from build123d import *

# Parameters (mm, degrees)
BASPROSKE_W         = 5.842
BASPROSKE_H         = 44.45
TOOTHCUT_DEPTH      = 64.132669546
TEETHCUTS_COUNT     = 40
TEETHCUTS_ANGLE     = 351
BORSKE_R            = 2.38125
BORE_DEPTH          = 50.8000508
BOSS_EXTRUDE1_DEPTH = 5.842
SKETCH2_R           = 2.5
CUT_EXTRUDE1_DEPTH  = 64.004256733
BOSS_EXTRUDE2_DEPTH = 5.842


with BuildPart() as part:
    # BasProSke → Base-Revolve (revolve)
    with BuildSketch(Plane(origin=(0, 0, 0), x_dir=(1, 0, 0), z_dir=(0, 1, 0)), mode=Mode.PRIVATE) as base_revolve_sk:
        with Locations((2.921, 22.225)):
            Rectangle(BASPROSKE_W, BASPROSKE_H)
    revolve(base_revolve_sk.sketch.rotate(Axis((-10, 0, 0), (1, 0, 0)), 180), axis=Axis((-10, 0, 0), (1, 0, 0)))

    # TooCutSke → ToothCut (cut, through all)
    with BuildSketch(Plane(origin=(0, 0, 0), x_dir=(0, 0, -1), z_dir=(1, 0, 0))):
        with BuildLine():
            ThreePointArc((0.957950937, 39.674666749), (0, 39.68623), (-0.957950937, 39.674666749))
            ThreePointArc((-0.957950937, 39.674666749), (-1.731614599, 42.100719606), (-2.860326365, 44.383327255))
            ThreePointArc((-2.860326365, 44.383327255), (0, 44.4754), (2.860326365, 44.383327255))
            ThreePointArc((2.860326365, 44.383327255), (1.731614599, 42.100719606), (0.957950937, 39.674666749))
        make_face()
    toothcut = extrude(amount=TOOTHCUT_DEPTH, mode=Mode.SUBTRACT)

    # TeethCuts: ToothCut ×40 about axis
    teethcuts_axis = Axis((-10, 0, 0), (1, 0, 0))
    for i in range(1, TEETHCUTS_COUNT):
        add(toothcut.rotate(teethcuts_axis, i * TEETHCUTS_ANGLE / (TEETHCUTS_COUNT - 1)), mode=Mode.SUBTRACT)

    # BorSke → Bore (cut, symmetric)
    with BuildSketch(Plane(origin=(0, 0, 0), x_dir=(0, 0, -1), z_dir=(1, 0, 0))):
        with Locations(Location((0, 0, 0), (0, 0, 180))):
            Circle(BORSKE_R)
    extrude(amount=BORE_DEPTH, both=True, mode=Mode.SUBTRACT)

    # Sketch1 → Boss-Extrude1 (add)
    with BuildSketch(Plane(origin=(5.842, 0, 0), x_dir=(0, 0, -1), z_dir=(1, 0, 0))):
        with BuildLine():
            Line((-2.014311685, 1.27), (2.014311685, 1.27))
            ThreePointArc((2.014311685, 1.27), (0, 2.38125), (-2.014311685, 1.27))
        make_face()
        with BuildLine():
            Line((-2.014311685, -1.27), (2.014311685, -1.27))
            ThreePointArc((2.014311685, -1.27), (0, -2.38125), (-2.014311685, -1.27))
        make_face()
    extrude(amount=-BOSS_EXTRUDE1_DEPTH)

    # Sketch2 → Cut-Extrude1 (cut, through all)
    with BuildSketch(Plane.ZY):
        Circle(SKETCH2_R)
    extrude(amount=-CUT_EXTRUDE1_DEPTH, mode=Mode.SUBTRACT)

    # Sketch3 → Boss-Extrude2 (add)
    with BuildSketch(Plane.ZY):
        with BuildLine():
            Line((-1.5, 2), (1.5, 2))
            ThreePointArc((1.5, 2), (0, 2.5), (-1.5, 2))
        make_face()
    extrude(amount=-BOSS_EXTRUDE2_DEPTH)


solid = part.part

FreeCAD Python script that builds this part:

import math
import FreeCAD as App
import Part
import Sketcher

V = App.Vector
Q = App.Units.Quantity


def add_polygon(sketch, points):
    """Adds a closed chain of lines whose ends are joined by coincident constraints."""
    first, n = sketch.GeometryCount, len(points)
    for a, b in zip(points, points[1:] + points[:1]):
        sketch.addGeometry(Part.LineSegment(App.Vector(*a, 0), App.Vector(*b, 0)), False)
    for i in range(n):
        sketch.addConstraint(Sketcher.Constraint("Coincident", first + i, 2, first + (i + 1) % n, 1))

doc = App.newDocument("Part")
body = doc.addObject("PartDesign::Body", "Body")

# Sketch on XZ plane
sketch1 = body.newObject("Sketcher::SketchObject", "Sketch")
sketch1.AttachmentSupport = (doc.getObject("XZ_Plane"), [""])
sketch1.MapMode = "FlatFace"
add_polygon(sketch1, [(0, -44), (0, 0), (6, 0), (6, -44)])  # lines 0-3
sketch1.addConstraint([
    Sketcher.Constraint("Vertical", 0),
    Sketcher.Constraint("Horizontal", 1),
    Sketcher.Constraint("Vertical", 2),
    Sketcher.Constraint("Horizontal", 3),
    Sketcher.Constraint("Coincident", 0, 2, -1, 1),
    Sketcher.Constraint("DistanceX", 1, 1, 1, 2, Q("0.23 in")),
    Sketcher.Constraint("DistanceY", 0, 1, 0, 2, Q("1.75 in")),
])
revolution = body.newObject("PartDesign::Revolution", "Revolution")
revolution.Profile = sketch1
revolution.ReferenceAxis = (sketch1, ["H_Axis"])
revolution.Angle = 360

# Sketch on YZ plane
sketch2 = body.newObject("Sketcher::SketchObject", "Sketch001")
sketch2.AttachmentSupport = (doc.getObject("YZ_Plane"), [""])
sketch2.MapMode = "FlatFace"
sketch2.addGeometry([
    Part.ArcOfCircle(Part.Circle(V(0, 0, 0), V(0, 0, 1), 39.7), math.radians(-1.38), math.radians(1.38)),
    Part.ArcOfCircle(Part.Circle(V(35.8, -17.4, 0), V(0, 0, 1), 16.9), math.radians(59.38), math.radians(76.62)),
    Part.ArcOfCircle(Part.Circle(V(0, 0, 0), V(0, 0, 1), 44.5), math.radians(-3.69), math.radians(3.69)),
    Part.ArcOfCircle(Part.Circle(V(35.8, 17.4, 0), V(0, 0, 1), 16.9), math.radians(-76.62), math.radians(-59.38)),
], False)
sketch2.addConstraint([
    Sketcher.Constraint("Coincident", 0, 1, 1, 2),
    Sketcher.Constraint("Coincident", 1, 1, 2, 1),
    Sketcher.Constraint("Coincident", 2, 2, 3, 2),
    Sketcher.Constraint("Coincident", 3, 1, 0, 2),
    Sketcher.Constraint("Coincident", 0, 3, -1, 1),
    Sketcher.Constraint("Coincident", 2, 3, -1, 1),
    Sketcher.Constraint("Equal", 1, 3),
    Sketcher.Constraint("Symmetric", 1, 3, 3, 3, -1),
    Sketcher.Constraint("Radius", 2, Q("1.751 in")),
    Sketcher.Constraint("Radius", 0, Q("39.686231 mm")),
    Sketcher.Constraint("Radius", 1, Q("16.933333 mm")),
    Sketcher.Constraint("DistanceY", 0, 1, 3, 1, Q("1.915902 mm")),
    Sketcher.Constraint("DistanceX", 1, 3, 0, 1, Q("3.917151 mm")),
])
pocket1 = body.newObject("PartDesign::Pocket", "Pocket")
pocket1.Profile = sketch2
pocket1.Type = "ThroughAll"
pocket1.Reversed = True
doc.recompute()

polarpattern = body.newObject("PartDesign::PolarPattern", "PolarPattern")
polarpattern.Originals = [pocket1]
polarpattern.Axis = (doc.getObject("X_Axis"), [""])
polarpattern.Angle = 360
polarpattern.Occurrences = 40
body.Tip = polarpattern

# Sketch on YZ plane
sketch3 = body.newObject("Sketcher::SketchObject", "Sketch002")
sketch3.AttachmentSupport = (doc.getObject("YZ_Plane"), [""])
sketch3.MapMode = "FlatFace"
sketch3.addGeometry(Part.Circle(V(0, 0, 0), V(0, 0, 1), 2.4), False)
sketch3.addConstraint([
    Sketcher.Constraint("Coincident", 0, 3, -1, 1),
    Sketcher.Constraint("Diameter", 0, Q("0.1875 in")),
])
pocket2 = body.newObject("PartDesign::Pocket", "Pocket001")
pocket2.Profile = sketch3
pocket2.Length = 101.600102
pocket2.Midplane = True

# Sketch on YZ plane
sketch4 = body.newObject("Sketcher::SketchObject", "Sketch003")
sketch4.AttachmentSupport = (doc.getObject("YZ_Plane"), [""])
sketch4.MapMode = "FlatFace"
sketch4.AttachmentOffset = App.Placement(V(0, 0, 0.23 * 25.4), App.Rotation())
sketch4.addGeometry([
    Part.LineSegment(V(1.3, 2, 0), V(1.3, -2, 0)),
    Part.ArcOfCircle(Part.Circle(V(0, 0, 0), V(0, 0, 1), 2.4), math.radians(-58), math.radians(58)),
    Part.LineSegment(V(-1.3, -2, 0), V(-1.3, 2, 0)),
    Part.ArcOfCircle(Part.Circle(V(0, 0, 0), V(0, 0, 1), 2.4), math.radians(122), math.radians(238)),
], False)
sketch4.addConstraint([
    Sketcher.Constraint("Coincident", 0, 1, 1, 2),
    Sketcher.Constraint("Coincident", 1, 1, 0, 2),
    Sketcher.Constraint("Coincident", 2, 1, 3, 2),
    Sketcher.Constraint("Coincident", 3, 1, 2, 2),
    Sketcher.Constraint("Vertical", 0),
    Sketcher.Constraint("Vertical", 2),
    Sketcher.Constraint("Coincident", 1, 3, -1, 1),
    Sketcher.Constraint("Coincident", 3, 3, -1, 1),
    Sketcher.Constraint("Equal", 1, 3),
    Sketcher.Constraint("Horizontal", 1, 1, 2, 1),
    Sketcher.Constraint("Radius", 1, Q("0.09375 in")),
    Sketcher.Constraint("DistanceX", 2, 1, 1, 1, Q("0.1 in")),
])
pad1 = body.newObject("PartDesign::Pad", "Pad")
pad1.Profile = sketch4
pad1.Length = Q("0.23 in")
pad1.Reversed = True

# Sketch on YZ plane
sketch5 = body.newObject("Sketcher::SketchObject", "Sketch004")
sketch5.AttachmentSupport = (doc.getObject("YZ_Plane"), [""])
sketch5.MapMode = "FlatFace"
sketch5.addGeometry(Part.Circle(V(0, 0, 0), V(0, 0, 1), 2.5), False)
sketch5.addConstraint([
    Sketcher.Constraint("Coincident", 0, 3, -1, 1),
    Sketcher.Constraint("Diameter", 0, Q("5 mm")),
])
pocket3 = body.newObject("PartDesign::Pocket", "Pocket002")
pocket3.Profile = sketch5
pocket3.Type = "ThroughAll"
pocket3.Reversed = True

# Sketch on YZ plane
sketch6 = body.newObject("Sketcher::SketchObject", "Sketch005")
sketch6.AttachmentSupport = (doc.getObject("YZ_Plane"), [""])
sketch6.MapMode = "FlatFace"
sketch6.addGeometry([
    Part.LineSegment(V(2, -1.5, 0), V(2, 1.5, 0)),
    Part.ArcOfCircle(Part.Circle(V(0, 0, 0), V(0, 0, 1), 2.5), math.radians(-37), math.radians(37)),
], False)
sketch6.addConstraint([
    Sketcher.Constraint("Coincident", 0, 1, 1, 1),
    Sketcher.Constraint("Coincident", 1, 2, 0, 2),
    Sketcher.Constraint("Vertical", 0),
    Sketcher.Constraint("Coincident", 1, 3, -1, 1),
    Sketcher.Constraint("Radius", 1, Q("2.5 mm")),
    Sketcher.Constraint("DistanceY", 0, 1, 0, 2, Q("3 mm")),
])
pad2 = body.newObject("PartDesign::Pad", "Pad001")
pad2.Profile = sketch6
pad2.Length = Q("0.23 in")

doc.recompute()
